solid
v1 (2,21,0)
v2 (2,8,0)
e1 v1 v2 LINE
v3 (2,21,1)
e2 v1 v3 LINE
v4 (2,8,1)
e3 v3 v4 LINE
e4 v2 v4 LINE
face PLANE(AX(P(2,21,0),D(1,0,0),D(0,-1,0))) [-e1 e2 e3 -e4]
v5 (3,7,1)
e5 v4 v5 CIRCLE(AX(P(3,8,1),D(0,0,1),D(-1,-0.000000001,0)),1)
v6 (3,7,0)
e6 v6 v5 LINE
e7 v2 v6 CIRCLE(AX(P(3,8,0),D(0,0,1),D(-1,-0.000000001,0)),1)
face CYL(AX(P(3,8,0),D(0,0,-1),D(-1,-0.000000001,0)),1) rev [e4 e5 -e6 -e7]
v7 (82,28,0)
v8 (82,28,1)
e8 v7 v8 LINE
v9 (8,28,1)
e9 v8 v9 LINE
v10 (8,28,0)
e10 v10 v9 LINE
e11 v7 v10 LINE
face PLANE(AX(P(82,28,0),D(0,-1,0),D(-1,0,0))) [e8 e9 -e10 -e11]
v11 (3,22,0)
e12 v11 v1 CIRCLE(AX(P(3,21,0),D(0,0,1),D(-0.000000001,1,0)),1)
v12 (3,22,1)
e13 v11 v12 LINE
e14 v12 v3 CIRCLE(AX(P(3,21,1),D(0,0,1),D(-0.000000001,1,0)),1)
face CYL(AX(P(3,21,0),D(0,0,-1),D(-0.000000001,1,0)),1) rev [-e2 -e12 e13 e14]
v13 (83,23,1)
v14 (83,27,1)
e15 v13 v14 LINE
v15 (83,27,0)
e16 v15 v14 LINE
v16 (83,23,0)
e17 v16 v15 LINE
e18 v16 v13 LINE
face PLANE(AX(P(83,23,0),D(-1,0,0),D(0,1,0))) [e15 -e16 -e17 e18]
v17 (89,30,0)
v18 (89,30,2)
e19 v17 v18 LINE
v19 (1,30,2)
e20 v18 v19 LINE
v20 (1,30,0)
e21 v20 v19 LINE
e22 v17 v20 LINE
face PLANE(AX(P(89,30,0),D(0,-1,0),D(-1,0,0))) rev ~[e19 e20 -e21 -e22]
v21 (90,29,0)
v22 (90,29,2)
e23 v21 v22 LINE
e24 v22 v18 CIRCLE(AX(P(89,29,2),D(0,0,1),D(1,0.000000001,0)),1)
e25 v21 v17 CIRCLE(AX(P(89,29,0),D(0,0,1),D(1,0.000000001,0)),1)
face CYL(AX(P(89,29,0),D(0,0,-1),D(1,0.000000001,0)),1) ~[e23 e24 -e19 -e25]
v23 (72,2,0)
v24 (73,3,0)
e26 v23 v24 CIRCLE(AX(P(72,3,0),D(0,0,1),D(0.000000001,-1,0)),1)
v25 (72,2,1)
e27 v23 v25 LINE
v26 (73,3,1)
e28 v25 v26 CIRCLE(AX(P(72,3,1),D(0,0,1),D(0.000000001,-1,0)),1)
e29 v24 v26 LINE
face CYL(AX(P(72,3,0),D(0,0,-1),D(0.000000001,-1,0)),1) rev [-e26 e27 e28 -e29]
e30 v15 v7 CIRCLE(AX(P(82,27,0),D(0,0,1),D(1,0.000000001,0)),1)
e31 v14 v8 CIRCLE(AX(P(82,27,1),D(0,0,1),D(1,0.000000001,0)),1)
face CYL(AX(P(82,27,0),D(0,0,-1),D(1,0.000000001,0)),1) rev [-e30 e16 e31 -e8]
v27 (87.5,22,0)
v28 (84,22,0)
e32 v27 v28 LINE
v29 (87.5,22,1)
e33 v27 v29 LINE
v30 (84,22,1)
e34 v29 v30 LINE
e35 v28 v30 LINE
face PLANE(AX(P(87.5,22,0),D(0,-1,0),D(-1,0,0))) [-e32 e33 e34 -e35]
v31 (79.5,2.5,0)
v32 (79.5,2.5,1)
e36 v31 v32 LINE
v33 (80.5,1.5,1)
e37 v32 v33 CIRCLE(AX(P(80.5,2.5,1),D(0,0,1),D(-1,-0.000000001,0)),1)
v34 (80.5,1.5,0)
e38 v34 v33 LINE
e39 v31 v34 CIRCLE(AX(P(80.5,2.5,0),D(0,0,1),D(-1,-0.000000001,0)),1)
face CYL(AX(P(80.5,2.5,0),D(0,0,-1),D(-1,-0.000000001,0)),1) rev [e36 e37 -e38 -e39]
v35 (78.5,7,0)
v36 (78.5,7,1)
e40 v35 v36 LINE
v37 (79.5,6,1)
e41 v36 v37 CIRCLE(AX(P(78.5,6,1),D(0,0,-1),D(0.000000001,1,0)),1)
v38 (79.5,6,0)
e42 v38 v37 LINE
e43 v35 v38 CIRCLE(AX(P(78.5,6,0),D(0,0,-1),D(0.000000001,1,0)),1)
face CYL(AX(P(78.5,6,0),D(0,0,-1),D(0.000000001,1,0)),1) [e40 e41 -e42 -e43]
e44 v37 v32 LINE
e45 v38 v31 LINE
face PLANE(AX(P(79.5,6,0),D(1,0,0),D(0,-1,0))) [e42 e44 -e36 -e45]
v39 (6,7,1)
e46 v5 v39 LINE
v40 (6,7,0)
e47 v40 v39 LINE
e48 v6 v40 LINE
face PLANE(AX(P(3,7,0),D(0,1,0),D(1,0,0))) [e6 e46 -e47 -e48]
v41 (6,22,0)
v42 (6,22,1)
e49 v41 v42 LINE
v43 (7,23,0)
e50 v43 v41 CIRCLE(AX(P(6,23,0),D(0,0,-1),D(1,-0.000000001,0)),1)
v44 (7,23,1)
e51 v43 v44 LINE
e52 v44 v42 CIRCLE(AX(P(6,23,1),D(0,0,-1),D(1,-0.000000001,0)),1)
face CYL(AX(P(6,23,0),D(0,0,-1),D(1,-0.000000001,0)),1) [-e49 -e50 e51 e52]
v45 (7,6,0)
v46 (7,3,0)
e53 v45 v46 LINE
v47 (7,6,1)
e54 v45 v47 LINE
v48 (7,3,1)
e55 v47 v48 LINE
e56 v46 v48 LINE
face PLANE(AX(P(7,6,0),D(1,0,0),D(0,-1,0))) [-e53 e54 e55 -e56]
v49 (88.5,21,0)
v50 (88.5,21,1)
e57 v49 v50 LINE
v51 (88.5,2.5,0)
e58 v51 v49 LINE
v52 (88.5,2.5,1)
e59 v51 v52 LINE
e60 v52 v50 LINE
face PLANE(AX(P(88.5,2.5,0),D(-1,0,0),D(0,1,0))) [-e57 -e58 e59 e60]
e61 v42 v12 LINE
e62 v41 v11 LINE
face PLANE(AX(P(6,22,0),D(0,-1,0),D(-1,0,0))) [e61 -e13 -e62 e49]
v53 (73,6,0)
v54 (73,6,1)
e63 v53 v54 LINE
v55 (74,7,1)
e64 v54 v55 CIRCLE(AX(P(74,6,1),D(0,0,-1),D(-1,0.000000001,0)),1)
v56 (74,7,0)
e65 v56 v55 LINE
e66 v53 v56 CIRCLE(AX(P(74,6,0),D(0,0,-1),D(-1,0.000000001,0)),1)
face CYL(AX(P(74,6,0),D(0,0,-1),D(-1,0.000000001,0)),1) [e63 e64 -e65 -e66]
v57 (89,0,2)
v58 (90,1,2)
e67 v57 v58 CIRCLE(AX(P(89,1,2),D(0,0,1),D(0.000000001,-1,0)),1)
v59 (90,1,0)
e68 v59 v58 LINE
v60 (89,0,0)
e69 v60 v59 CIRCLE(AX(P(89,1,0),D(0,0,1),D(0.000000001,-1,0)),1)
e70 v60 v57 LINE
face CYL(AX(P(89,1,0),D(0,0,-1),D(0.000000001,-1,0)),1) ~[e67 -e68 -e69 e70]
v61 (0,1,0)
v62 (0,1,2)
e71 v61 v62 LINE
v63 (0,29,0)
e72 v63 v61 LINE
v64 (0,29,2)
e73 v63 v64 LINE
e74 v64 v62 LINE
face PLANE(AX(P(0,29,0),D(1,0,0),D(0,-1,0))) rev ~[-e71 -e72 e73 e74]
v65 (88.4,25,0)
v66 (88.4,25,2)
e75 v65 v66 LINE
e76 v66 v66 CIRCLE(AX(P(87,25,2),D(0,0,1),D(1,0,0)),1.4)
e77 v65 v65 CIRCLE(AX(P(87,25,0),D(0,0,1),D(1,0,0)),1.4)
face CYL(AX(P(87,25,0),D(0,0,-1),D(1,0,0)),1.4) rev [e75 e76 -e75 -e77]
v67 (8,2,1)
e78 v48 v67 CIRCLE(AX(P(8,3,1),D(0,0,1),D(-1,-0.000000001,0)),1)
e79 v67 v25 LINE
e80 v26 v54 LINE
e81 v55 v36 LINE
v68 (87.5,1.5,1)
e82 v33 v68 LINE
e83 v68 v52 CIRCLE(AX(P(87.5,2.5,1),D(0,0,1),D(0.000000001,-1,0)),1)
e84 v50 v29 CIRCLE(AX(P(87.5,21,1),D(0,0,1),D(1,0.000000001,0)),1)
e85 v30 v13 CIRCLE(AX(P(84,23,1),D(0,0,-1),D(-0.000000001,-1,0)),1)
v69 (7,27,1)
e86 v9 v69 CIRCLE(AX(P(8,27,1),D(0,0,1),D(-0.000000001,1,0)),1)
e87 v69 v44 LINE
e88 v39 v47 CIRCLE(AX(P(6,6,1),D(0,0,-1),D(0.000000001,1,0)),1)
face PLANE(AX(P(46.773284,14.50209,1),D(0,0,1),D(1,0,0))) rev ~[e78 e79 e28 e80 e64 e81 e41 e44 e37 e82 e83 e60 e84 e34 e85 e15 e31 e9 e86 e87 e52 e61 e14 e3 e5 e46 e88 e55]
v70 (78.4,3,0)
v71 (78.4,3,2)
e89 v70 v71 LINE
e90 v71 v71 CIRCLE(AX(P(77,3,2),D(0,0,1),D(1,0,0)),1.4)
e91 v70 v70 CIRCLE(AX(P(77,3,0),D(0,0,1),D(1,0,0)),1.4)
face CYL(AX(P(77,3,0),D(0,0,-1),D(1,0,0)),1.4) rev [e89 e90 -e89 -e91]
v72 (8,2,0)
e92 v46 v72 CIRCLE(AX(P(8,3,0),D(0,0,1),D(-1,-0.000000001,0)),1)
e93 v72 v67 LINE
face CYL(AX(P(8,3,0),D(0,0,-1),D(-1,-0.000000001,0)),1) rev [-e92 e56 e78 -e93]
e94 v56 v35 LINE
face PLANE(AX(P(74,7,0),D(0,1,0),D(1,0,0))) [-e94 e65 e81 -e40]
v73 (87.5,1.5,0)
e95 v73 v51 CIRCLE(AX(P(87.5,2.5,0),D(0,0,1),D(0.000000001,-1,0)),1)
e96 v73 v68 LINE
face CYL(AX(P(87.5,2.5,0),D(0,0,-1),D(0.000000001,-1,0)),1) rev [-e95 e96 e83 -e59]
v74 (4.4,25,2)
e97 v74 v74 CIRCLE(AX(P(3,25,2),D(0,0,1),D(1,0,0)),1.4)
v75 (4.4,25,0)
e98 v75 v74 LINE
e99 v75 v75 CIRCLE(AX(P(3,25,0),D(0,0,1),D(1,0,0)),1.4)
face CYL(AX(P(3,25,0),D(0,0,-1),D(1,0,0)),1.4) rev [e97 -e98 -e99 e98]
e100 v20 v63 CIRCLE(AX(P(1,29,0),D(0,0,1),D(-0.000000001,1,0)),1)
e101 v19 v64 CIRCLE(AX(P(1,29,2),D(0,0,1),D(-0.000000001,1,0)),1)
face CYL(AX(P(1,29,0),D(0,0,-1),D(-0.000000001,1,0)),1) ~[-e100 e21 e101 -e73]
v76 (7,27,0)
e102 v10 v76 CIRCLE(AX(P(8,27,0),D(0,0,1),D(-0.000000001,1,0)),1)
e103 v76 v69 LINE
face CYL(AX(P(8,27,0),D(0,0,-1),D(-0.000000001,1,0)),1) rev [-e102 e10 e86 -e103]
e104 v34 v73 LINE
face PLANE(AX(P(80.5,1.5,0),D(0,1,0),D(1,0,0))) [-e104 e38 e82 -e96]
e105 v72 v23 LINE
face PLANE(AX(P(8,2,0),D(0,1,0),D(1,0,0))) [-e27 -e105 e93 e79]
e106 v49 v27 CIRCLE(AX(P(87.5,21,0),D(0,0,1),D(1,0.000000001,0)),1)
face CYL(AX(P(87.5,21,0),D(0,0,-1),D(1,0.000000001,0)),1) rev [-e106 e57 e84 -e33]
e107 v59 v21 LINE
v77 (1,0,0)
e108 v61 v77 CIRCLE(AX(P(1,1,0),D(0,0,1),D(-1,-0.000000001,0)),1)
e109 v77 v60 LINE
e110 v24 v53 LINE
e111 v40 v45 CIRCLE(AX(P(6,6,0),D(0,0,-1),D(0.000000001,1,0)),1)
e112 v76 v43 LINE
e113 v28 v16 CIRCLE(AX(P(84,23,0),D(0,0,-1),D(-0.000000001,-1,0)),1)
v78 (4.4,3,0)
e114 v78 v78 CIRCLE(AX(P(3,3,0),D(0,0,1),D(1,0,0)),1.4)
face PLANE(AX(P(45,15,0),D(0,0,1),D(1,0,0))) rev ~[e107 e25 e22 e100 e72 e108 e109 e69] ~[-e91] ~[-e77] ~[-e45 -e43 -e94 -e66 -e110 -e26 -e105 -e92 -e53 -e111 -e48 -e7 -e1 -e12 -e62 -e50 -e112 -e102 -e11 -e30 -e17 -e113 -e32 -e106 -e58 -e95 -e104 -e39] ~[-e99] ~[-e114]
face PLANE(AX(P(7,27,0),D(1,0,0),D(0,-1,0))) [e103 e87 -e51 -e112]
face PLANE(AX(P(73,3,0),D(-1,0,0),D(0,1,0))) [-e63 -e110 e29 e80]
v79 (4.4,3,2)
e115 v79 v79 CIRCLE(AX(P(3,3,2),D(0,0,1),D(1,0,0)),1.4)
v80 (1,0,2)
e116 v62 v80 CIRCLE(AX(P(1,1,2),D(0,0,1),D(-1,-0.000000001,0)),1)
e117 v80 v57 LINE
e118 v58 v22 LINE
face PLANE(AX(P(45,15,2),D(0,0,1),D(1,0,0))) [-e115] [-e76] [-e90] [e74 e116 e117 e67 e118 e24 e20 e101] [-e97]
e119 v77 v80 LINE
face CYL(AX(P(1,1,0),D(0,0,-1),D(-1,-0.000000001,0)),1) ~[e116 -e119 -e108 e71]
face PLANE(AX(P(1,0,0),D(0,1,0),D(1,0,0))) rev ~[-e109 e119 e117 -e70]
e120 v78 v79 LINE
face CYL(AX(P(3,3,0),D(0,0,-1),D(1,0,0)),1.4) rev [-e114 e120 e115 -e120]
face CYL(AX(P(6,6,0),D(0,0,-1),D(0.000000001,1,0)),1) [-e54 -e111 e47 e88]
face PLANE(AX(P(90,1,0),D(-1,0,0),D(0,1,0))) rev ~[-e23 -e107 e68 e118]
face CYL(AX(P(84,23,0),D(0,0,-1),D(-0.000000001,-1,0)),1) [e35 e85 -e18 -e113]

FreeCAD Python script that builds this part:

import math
import FreeCAD as App
import Part
import Sketcher

V = App.Vector
Q = App.Units.Quantity

doc = App.newDocument("Part")
params = doc.addObject("Spreadsheet::Sheet", "Params")
for row, (alias, value) in enumerate([
    ("sketch1_radius", "1 mm"),
    ("sketch1_diameter", "2.8 mm"),
    ("sketch1_width", "88 mm"),
    ("sketch1_height", "28 mm"),
    ("pad1_length", "2 mm"),
    ("sketch2_radius", "1 mm"),
    ("sketch2_width", "74 mm"),
    ("sketch2_width2", "7 mm"),
    ("sketch2_width3", "64 mm"),
    ("sketch2_width4", "3 mm"),
    ("pocket1_length", "1 mm"),
], start=1):
    params.set(f"A{row}", alias)
    params.set(f"B{row}", "=" + value)
    params.setAlias(f"B{row}", alias)

body = doc.addObject("PartDesign::Body", "Body")

sketch1 = body.newObject("Sketcher::SketchObject", "Sketch")
sketch1.AttachmentSupport = (doc.getObject("XY_Plane"), [""])
sketch1.MapMode = "FlatFace"
sketch1.addGeometry(Part.ArcOfCircle(Part.Circle(V(89, 1, 0), V(0, 0, 1), 1), math.radians(-90), math.radians(0)), False)
sketch1.addGeometry(Part.LineSegment(V(90, 1, 0), V(90, 29, 0)), False)
sketch1.addGeometry(Part.ArcOfCircle(Part.Circle(V(89, 29, 0), V(0, 0, 1), 1), math.radians(0), math.radians(90)), False)
sketch1.addGeometry(Part.LineSegment(V(89, 30, 0), V(1, 30, 0)), False)
sketch1.addGeometry(Part.ArcOfCircle(Part.Circle(V(1, 29, 0), V(0, 0, 1), 1), math.radians(90), math.radians(180)), False)
sketch1.addGeometry(Part.LineSegment(V(0, 29, 0), V(0, 1, 0)), False)
sketch1.addGeometry(Part.ArcOfCircle(Part.Circle(V(1, 1, 0), V(0, 0, 1), 1), math.radians(-180), math.radians(-90)), False)
sketch1.addGeometry(Part.LineSegment(V(1, 0, 0), V(89, 0, 0)), False)
sketch1.addGeometry(Part.Circle(V(3, 3, 0), V(0, 0, 1), 1.4), False)
sketch1.addGeometry(Part.Circle(V(77, 3, 0), V(0, 0, 1), 1.4), False)
sketch1.addGeometry(Part.Circle(V(3, 25, 0), V(0, 0, 1), 1.4), False)
sketch1.addGeometry(Part.Circle(V(87, 25, 0), V(0, 0, 1), 1.4), False)
sketch1.addConstraint(Sketcher.Constraint("Tangent", 0, 2, 1, 1))
sketch1.addConstraint(Sketcher.Constraint("Tangent", 1, 2, 2, 1))
sketch1.addConstraint(Sketcher.Constraint("Tangent", 2, 2, 3, 1))
sketch1.addConstraint(Sketcher.Constraint("Tangent", 3, 2, 4, 1))
sketch1.addConstraint(Sketcher.Constraint("Tangent", 4, 2, 5, 1))
sketch1.addConstraint(Sketcher.Constraint("Tangent", 5, 2, 6, 1))
sketch1.addConstraint(Sketcher.Constraint("Tangent", 6, 2, 7, 1))
sketch1.addConstraint(Sketcher.Constraint("Tangent", 7, 2, 0, 1))
sketch1.addConstraint(Sketcher.Constraint("Vertical", 1))
sketch1.addConstraint(Sketcher.Constraint("Horizontal", 3))
sketch1.addConstraint(Sketcher.Constraint("Vertical", 5))
sketch1.addConstraint(Sketcher.Constraint("Horizontal", 7))
sketch1.addConstraint(Sketcher.Constraint("Equal", 0, 2))
sketch1.addConstraint(Sketcher.Constraint("Equal", 2, 4))
sketch1.addConstraint(Sketcher.Constraint("Equal", 4, 6))
sketch1.addConstraint(Sketcher.Constraint("Equal", 8, 9))
sketch1.addConstraint(Sketcher.Constraint("Equal", 9, 10))
sketch1.addConstraint(Sketcher.Constraint("Equal", 10, 11))
sketch1.addConstraint(Sketcher.Constraint("PointOnObject", 4, 2, -2))
sketch1.addConstraint(Sketcher.Constraint("PointOnObject", 6, 2, -1))
sketch1.addConstraint(Sketcher.Constraint("Horizontal", 8, 3, 9, 3))
sketch1.addConstraint(Sketcher.Constraint("Horizontal", 10, 3, 11, 3))
sketch1.addConstraint(Sketcher.Constraint("Vertical", 8, 3, 10, 3))
sketch1.addConstraint(Sketcher.Constraint("Radius", 0, Q("1 mm")))
sketch1.addConstraint(Sketcher.Constraint("Diameter", 8, Q("2.8 mm")))
sketch1.addConstraint(Sketcher.Constraint("DistanceX", 3, 2, 3, 1, Q("88 mm")))
sketch1.addConstraint(Sketcher.Constraint("DistanceY", 1, 1, 1, 2, Q("28 mm")))
sketch1.addConstraint(Sketcher.Constraint("DistanceX", -1, 1, 8, 3, Q("3 mm")))
sketch1.addConstraint(Sketcher.Constraint("DistanceY", -1, 1, 8, 3, Q("3 mm")))
sketch1.addConstraint(Sketcher.Constraint("DistanceX", -1, 1, 9, 3, Q("77 mm")))
sketch1.addConstraint(Sketcher.Constraint("DistanceY", -1, 1, 10, 3, Q("25 mm")))
sketch1.addConstraint(Sketcher.Constraint("DistanceX", -1, 1, 11, 3, Q("87 mm")))
sketch1.setExpression("Constraints[23]", "Params.sketch1_radius")
sketch1.setExpression("Constraints[24]", "Params.sketch1_diameter")
sketch1.setExpression("Constraints[25]", "Params.sketch1_width")
sketch1.setExpression("Constraints[26]", "Params.sketch1_height")
pad1 = body.newObject("PartDesign::Pad", "Pad")
pad1.Profile = sketch1
pad1.setExpression("Length", "Params.pad1_length")

sketch2 = body.newObject("Sketcher::SketchObject", "Sketch001")
sketch2.AttachmentSupport = (doc.getObject("XY_Plane"), [""])
sketch2.MapMode = "FlatFace"
sketch2.addGeometry(Part.LineSegment(V(8, 28, 0), V(82, 28, 0)), False)
sketch2.addGeometry(Part.ArcOfCircle(Part.Circle(V(82, 27, 0), V(0, 0, 1), 1), math.radians(0), math.radians(90)), False)
sketch2.addGeometry(Part.LineSegment(V(83, 27, 0), V(83, 23, 0)), False)
sketch2.addGeometry(Part.ArcOfCircle(Part.Circle(V(84, 23, 0), V(0, 0, 1), 1), math.radians(-180), math.radians(-90)), False)
sketch2.addGeometry(Part.LineSegment(V(84, 22, 0), V(87.5, 22, 0)), False)
sketch2.addGeometry(Part.ArcOfCircle(Part.Circle(V(87.5, 21, 0), V(0, 0, 1), 1), math.radians(0), math.radians(90)), False)
sketch2.addGeometry(Part.LineSegment(V(88.5, 21, 0), V(88.5, 2.5, 0)), False)
sketch2.addGeometry(Part.ArcOfCircle(Part.Circle(V(87.5, 2.5, 0), V(0, 0, 1), 1), math.radians(-90), math.radians(0)), False)
sketch2.addGeometry(Part.LineSegment(V(87.5, 1.5, 0), V(80.5, 1.5, 0)), False)
sketch2.addGeometry(Part.ArcOfCircle(Part.Circle(V(80.5, 2.5, 0), V(0, 0, 1), 1), math.radians(-180), math.radians(-90)), False)
sketch2.addGeometry(Part.LineSegment(V(79.5, 2.5, 0), V(79.5, 6, 0)), False)
sketch2.addGeometry(Part.ArcOfCircle(Part.Circle(V(78.5, 6, 0), V(0, 0, 1), 1), math.radians(0), math.radians(90)), False)
sketch2.addGeometry(Part.LineSegment(V(78.5, 7, 0), V(74, 7, 0)), False)
sketch2.addGeometry(Part.ArcOfCircle(Part.Circle(V(74, 6, 0), V(0, 0, 1), 1), math.radians(90), math.radians(180)), False)
sketch2.addGeometry(Part.LineSegment(V(73, 6, 0), V(73, 3, 0)), False)
sketch2.addGeometry(Part.ArcOfCircle(Part.Circle(V(72, 3, 0), V(0, 0, 1), 1), math.radians(-90), math.radians(0)), False)
sketch2.addGeometry(Part.LineSegment(V(72, 2, 0), V(8, 2, 0)), False)
sketch2.addGeometry(Part.ArcOfCircle(Part.Circle(V(8, 3, 0), V(0, 0, 1), 1), math.radians(-180), math.radians(-90)), False)
sketch2.addGeometry(Part.LineSegment(V(7, 3, 0), V(7, 6, 0)), False)
sketch2.addGeometry(Part.ArcOfCircle(Part.Circle(V(6, 6, 0), V(0, 0, 1), 1), math.radians(0), math.radians(90)), False)
sketch2.addGeometry(Part.LineSegment(V(6, 7, 0), V(3, 7, 0)), False)
sketch2.addGeometry(Part.ArcOfCircle(Part.Circle(V(3, 8, 0), V(0, 0, 1), 1), math.radians(-180), math.radians(-90)), False)
sketch2.addGeometry(Part.LineSegment(V(2, 8, 0), V(2, 21, 0)), False)
sketch2.addGeometry(Part.ArcOfCircle(Part.Circle(V(3, 21, 0), V(0, 0, 1), 1), math.radians(90), math.radians(180)), False)
sketch2.addGeometry(Part.LineSegment(V(3, 22, 0), V(6, 22, 0)), False)
sketch2.addGeometry(Part.ArcOfCircle(Part.Circle(V(6, 23, 0), V(0, 0, 1), 1), math.radians(-90), math.radians(0)), False)
sketch2.addGeometry(Part.LineSegment(V(7, 23, 0), V(7, 27, 0)), False)
sketch2.addGeometry(Part.ArcOfCircle(Part.Circle(V(8, 27, 0), V(0, 0, 1), 1), math.radians(90), math.radians(180)), False)
sketch2.addConstraint(Sketcher.Constraint("Tangent", 0, 2, 1, 2))
sketch2.addConstraint(Sketcher.Constraint("Tangent", 1, 1, 2, 1))
sketch2.addConstraint(Sketcher.Constraint("Tangent", 2, 2, 3, 1))
sketch2.addConstraint(Sketcher.Constraint("Tangent", 3, 2, 4, 1))
sketch2.addConstraint(Sketcher.Constraint("Tangent", 4, 2, 5, 2))
sketch2.addConstraint(Sketcher.Constraint("Tangent", 5, 1, 6, 1))
sketch2.addConstraint(Sketcher.Constraint("Tangent", 6, 2, 7, 2))
sketch2.addConstraint(Sketcher.Constraint("Tangent", 7, 1, 8, 1))
sketch2.addConstraint(Sketcher.Constraint("Tangent", 8, 2, 9, 2))
sketch2.addConstraint(Sketcher.Constraint("Tangent", 9, 1, 10, 1))
sketch2.addConstraint(Sketcher.Constraint("Tangent", 10, 2, 11, 1))
sketch2.addConstraint(Sketcher.Constraint("Tangent", 11, 2, 12, 1))
sketch2.addConstraint(Sketcher.Constraint("Tangent", 12, 2, 13, 1))
sketch2.addConstraint(Sketcher.Constraint("Tangent", 13, 2, 14, 1))
sketch2.addConstraint(Sketcher.Constraint("Tangent", 14, 2, 15, 2))
sketch2.addConstraint(Sketcher.Constraint("Tangent", 15, 1, 16, 1))
sketch2.addConstraint(Sketcher.Constraint("Tangent", 16, 2, 17, 2))
sketch2.addConstraint(Sketcher.Constraint("Tangent", 17, 1, 18, 1))
sketch2.addConstraint(Sketcher.Constraint("Tangent", 18, 2, 19, 1))
sketch2.addConstraint(Sketcher.Constraint("Tangent", 19, 2, 20, 1))
sketch2.addConstraint(Sketcher.Constraint("Tangent", 20, 2, 21, 2))
sketch2.addConstraint(Sketcher.Constraint("Tangent", 21, 1, 22, 1))
sketch2.addConstraint(Sketcher.Constraint("Tangent", 22, 2, 23, 2))
sketch2.addConstraint(Sketcher.Constraint("Tangent", 23, 1, 24, 1))
sketch2.addConstraint(Sketcher.Constraint("Tangent", 24, 2, 25, 1))
sketch2.addConstraint(Sketcher.Constraint("Tangent", 25, 2, 26, 1))
sketch2.addConstraint(Sketcher.Constraint("Tangent", 26, 2, 27, 2))
sketch2.addConstraint(Sketcher.Constraint("Tangent", 27, 1, 0, 1))
sketch2.addConstraint(Sketcher.Constraint("Horizontal", 0))
sketch2.addConstraint(Sketcher.Constraint("Vertical", 2))
sketch2.addConstraint(Sketcher.Constraint("Horizontal", 4))
sketch2.addConstraint(Sketcher.Constraint("Vertical", 6))
sketch2.addConstraint(Sketcher.Constraint("Horizontal", 8))
sketch2.addConstraint(Sketcher.Constraint("Vertical", 10))
sketch2.addConstraint(Sketcher.Constraint("Horizontal", 12))
sketch2.addConstraint(Sketcher.Constraint("Vertical", 14))
sketch2.addConstraint(Sketcher.Constraint("Horizontal", 16))
sketch2.addConstraint(Sketcher.Constraint("Vertical", 18))
sketch2.addConstraint(Sketcher.Constraint("Horizontal", 20))
sketch2.addConstraint(Sketcher.Constraint("Vertical", 22))
sketch2.addConstraint(Sketcher.Constraint("Horizontal", 24))
sketch2.addConstraint(Sketcher.Constraint("Vertical", 26))
sketch2.addConstraint(Sketcher.Constraint("Equal", 1, 3))
sketch2.addConstraint(Sketcher.Constraint("Equal", 3, 5))
sketch2.addConstraint(Sketcher.Constraint("Equal", 5, 7))
sketch2.addConstraint(Sketcher.Constraint("Equal", 7, 9))
sketch2.addConstraint(Sketcher.Constraint("Equal", 9, 11))
sketch2.addConstraint(Sketcher.Constraint("Equal", 11, 13))
sketch2.addConstraint(Sketcher.Constraint("Equal", 13, 15))
sketch2.addConstraint(Sketcher.Constraint("Equal", 15, 17))
sketch2.addConstraint(Sketcher.Constraint("Equal", 17, 19))
sketch2.addConstraint(Sketcher.Constraint("Equal", 19, 21))
sketch2.addConstraint(Sketcher.Constraint("Equal", 21, 23))
sketch2.addConstraint(Sketcher.Constraint("Equal", 23, 25))
sketch2.addConstraint(Sketcher.Constraint("Equal", 25, 27))
sketch2.addConstraint(Sketcher.Constraint("Horizontal", 13, 3, 19, 3))
sketch2.addConstraint(Sketcher.Constraint("Horizontal", 5, 3, 23, 3))
sketch2.addConstraint(Sketcher.Constraint("Vertical", 19, 3, 25, 3))
sketch2.addConstraint(Sketcher.Constraint("Equal", 4, 10))
sketch2.addConstraint(Sketcher.Constraint("Equal", 24, 14))
sketch2.addConstraint(Sketcher.Constraint("Radius", 1, Q("1 mm")))
sketch2.addConstraint(Sketcher.Constraint("DistanceX", 0, 1, 0, 2, Q("74 mm")))
sketch2.addConstraint(Sketcher.Constraint("DistanceX", 8, 2, 8, 1, Q("7 mm")))
sketch2.addConstraint(Sketcher.Constraint("DistanceX", 16, 2, 16, 1, Q("64 mm")))
sketch2.addConstraint(Sketcher.Constraint("DistanceX", 20, 2, 20, 1, Q("3 mm")))
sketch2.addConstraint(Sketcher.Constraint("DistanceY", 2, 2, 2, 1, Q("4 mm")))
sketch2.addConstraint(Sketcher.Constraint("DistanceY", 22, 1, 22, 2, Q("13 mm")))
sketch2.addConstraint(Sketcher.Constraint("DistanceX", 4, 1, 4, 2, Q("3.5 mm")))
sketch2.addConstraint(Sketcher.Constraint("DistanceX", -1, 1, 1, 3, Q("82 mm")))
sketch2.addConstraint(Sketcher.Constraint("DistanceY", -1, 1, 1, 3, Q("27 mm")))
sketch2.setExpression("Constraints[60]", "Params.sketch2_radius")
sketch2.setExpression("Constraints[61]", "Params.sketch2_width")
sketch2.setExpression("Constraints[62]", "Params.sketch2_width2")
sketch2.setExpression("Constraints[63]", "Params.sketch2_width3")
sketch2.setExpression("Constraints[64]", "Params.sketch2_width4")
pocket1 = body.newObject("PartDesign::Pocket", "Pocket")
pocket1.Profile = sketch2
pocket1.setExpression("Length", "Params.pocket1_length")
pocket1.Reversed = True

doc.recompute()
